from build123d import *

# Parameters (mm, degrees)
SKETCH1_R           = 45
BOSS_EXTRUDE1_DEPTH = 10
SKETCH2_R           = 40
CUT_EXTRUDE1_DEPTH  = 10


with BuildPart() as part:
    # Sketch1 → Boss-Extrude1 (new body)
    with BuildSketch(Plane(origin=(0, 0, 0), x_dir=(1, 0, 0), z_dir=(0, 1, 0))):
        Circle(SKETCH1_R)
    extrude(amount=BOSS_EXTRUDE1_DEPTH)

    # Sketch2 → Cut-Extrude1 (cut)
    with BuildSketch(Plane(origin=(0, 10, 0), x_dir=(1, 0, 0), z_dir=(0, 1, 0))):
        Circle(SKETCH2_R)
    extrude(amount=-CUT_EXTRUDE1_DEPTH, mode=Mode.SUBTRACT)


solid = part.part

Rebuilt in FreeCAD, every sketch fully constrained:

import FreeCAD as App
import Part
import Sketcher
from FreeCAD import Vector
Q = App.Units.Quantity

doc = App.newDocument("Part")
params = doc.addObject("Spreadsheet::Sheet", "Params")
for row, (alias, value) in enumerate([
    ("sketch1_diameter", "90 mm"),
    ("pad1_length", "10 mm"),
    ("sketch2_diameter", "80 mm"),
    ("pocket1_length", "10 mm"),
], start=1):
    params.set(f"A{row}", alias)
    params.set(f"B{row}", "=" + value)
    params.setAlias(f"B{row}", alias)

body = doc.addObject("PartDesign::Body", "Body")

# Sketch on XZ plane
sketch1 = body.newObject("Sketcher::SketchObject", "Sketch")
sketch1.AttachmentSupport = (doc.getObject("XZ_Plane"), [""])
sketch1.MapMode = "FlatFace"
sketch1.addGeometry(Part.Circle(Vector(0, 0, 0), Vector(0, 0, 1), 45), False)
sketch1.addConstraint(Sketcher.Constraint("Coincident", 0, 3, -1, 1))
sketch1.addConstraint(Sketcher.Constraint("Diameter", 0, Q("90 mm")))
sketch1.setExpression("Constraints[1]", "Params.sketch1_diameter")
pad1 = body.newObject("PartDesign::Pad", "Pad")
pad1.Profile = sketch1
pad1.setExpression("Length", "Params.pad1_length")
pad1.Reversed = True

# Sketch on XZ plane
sketch2 = body.newObject("Sketcher::SketchObject", "Sketch001")
sketch2.AttachmentSupport = (doc.getObject("XZ_Plane"), [""])
sketch2.MapMode = "FlatFace"
sketch2.AttachmentOffset = App.Placement(Vector(0, 0, -10), App.Rotation())
sketch2.addGeometry(Part.Circle(Vector(0, 0, 0), Vector(0, 0, 1), 40), False)
sketch2.addConstraint(Sketcher.Constraint("Coincident", 0, 3, -1, 1))
sketch2.addConstraint(Sketcher.Constraint("Diameter", 0, Q("80 mm")))
sketch2.setExpression("Constraints[1]", "Params.sketch2_diameter")
pocket1 = body.newObject("PartDesign::Pocket", "Pocket")
pocket1.Profile = sketch2
pocket1.setExpression("Length", "Params.pocket1_length")
pocket1.Reversed = True

doc.recompute()
